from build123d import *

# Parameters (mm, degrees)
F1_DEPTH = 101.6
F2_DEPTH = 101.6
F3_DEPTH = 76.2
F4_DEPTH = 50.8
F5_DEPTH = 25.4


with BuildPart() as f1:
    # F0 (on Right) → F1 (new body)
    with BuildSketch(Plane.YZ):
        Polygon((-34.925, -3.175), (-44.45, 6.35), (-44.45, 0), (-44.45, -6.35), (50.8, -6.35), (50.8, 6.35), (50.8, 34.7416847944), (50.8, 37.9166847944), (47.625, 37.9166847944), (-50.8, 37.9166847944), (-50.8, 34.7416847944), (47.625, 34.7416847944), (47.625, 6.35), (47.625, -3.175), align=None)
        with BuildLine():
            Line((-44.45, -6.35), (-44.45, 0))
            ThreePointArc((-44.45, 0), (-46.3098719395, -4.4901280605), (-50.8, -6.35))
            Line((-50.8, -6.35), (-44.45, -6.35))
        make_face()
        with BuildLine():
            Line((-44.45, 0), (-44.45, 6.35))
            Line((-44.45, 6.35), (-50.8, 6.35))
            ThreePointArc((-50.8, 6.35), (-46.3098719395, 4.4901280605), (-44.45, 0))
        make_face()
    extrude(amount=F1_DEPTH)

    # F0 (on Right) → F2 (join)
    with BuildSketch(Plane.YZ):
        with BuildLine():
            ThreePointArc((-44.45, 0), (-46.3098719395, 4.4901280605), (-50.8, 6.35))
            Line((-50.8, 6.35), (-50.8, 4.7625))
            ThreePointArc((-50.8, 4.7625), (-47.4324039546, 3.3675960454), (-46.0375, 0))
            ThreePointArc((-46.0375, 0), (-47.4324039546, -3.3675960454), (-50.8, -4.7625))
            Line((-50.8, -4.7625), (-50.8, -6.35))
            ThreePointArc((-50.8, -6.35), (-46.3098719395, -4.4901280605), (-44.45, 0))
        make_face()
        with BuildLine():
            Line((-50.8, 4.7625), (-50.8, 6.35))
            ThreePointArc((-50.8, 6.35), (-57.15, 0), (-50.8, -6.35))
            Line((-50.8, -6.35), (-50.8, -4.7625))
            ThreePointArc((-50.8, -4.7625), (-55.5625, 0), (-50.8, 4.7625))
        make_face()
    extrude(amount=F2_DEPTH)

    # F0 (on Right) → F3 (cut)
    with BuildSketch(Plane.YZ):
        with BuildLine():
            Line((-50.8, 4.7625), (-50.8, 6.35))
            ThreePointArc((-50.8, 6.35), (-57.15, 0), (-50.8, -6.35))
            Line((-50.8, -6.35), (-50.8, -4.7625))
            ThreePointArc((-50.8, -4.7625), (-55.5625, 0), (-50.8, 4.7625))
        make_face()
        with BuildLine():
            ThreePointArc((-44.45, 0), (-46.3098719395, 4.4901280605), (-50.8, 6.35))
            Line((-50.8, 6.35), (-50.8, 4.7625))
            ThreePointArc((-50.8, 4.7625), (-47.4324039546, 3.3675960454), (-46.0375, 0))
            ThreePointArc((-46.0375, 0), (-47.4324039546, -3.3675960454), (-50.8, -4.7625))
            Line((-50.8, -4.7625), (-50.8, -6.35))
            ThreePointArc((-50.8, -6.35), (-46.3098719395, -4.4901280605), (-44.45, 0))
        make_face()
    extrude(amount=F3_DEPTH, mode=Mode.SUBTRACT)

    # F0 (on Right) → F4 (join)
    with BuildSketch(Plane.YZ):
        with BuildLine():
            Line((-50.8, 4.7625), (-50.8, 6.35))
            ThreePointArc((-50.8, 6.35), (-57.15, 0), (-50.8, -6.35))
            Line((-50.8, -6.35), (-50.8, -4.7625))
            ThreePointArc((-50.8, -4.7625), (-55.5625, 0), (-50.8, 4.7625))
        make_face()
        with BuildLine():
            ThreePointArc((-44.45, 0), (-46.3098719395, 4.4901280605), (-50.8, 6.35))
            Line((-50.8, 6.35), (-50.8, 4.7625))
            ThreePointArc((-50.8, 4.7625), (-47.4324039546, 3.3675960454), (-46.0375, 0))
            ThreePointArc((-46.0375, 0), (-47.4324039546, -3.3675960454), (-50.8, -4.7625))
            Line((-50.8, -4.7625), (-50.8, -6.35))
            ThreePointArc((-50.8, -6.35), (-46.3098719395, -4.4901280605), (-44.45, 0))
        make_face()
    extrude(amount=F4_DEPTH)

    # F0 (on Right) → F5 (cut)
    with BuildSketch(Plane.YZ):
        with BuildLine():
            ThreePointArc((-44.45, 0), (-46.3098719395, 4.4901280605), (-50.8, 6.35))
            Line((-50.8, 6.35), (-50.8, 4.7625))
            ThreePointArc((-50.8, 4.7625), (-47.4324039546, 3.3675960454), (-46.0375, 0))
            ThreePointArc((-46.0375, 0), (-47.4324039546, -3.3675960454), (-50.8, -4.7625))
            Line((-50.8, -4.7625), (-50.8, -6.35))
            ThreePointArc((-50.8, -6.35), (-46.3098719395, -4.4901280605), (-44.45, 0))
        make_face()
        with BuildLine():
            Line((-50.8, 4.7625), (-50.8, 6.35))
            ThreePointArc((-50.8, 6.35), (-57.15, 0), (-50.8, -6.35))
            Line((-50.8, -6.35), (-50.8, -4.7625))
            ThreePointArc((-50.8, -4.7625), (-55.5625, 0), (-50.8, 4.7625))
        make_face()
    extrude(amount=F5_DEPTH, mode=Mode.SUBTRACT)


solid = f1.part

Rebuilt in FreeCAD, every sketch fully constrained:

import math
import FreeCAD as App
import Part
import Sketcher
Q = App.Units.Quantity

doc = App.newDocument("Part")
body = doc.addObject("PartDesign::Body", "Body")

sketch1 = body.newObject("Sketcher::SketchObject", "Sketch")
sketch1.AttachmentSupport = (doc.getObject("YZ_Plane"), [""])
sketch1.MapMode = "FlatFace"
sketch1.addGeometry([
    Part.LineSegment(App.Vector(-34.925, -3.175, 0), App.Vector(-44.45, 6.35, 0)),
    Part.LineSegment(App.Vector(-44.45, 6.35, 0), App.Vector(-50.8, 6.35, 0)),
    Part.ArcOfCircle(Part.Circle(App.Vector(-50.8, 0, 0), App.Vector(0, 0, 1), 6.35), math.radians(0), math.radians(90)),
    Part.ArcOfCircle(Part.Circle(App.Vector(-50.8, 0, 0), App.Vector(0, 0, 1), 6.35), math.radians(-90), math.radians(0)),
    Part.LineSegment(App.Vector(-50.8, -6.35, 0), App.Vector(50.8, -6.35, 0)),
    Part.LineSegment(App.Vector(50.8, -6.35, 0), App.Vector(50.8, 37.916685, 0)),
    Part.LineSegment(App.Vector(50.8, 37.916685, 0), App.Vector(-50.8, 37.916685, 0)),
    Part.LineSegment(App.Vector(-50.8, 37.916685, 0), App.Vector(-50.8, 34.741685, 0)),
    Part.LineSegment(App.Vector(-50.8, 34.741685, 0), App.Vector(47.625, 34.741685, 0)),
    Part.LineSegment(App.Vector(47.625, 34.741685, 0), App.Vector(47.625, -3.175, 0)),
    Part.LineSegment(App.Vector(47.625, -3.175, 0), App.Vector(-34.925, -3.175, 0)),
], False)
sketch1.addConstraint([
    Sketcher.Constraint("Coincident", 0, 2, 1, 1),
    Sketcher.Constraint("Tangent", 1, 2, 2, 2),
    Sketcher.Constraint("Tangent", 2, 1, 3, 2),
    Sketcher.Constraint("Tangent", 3, 1, 4, 1),
    Sketcher.Constraint("Coincident", 4, 2, 5, 1),
    Sketcher.Constraint("Coincident", 5, 2, 6, 1),
    Sketcher.Constraint("Coincident", 6, 2, 7, 1),
    Sketcher.Constraint("Coincident", 7, 2, 8, 1),
    Sketcher.Constraint("Coincident", 8, 2, 9, 1),
    Sketcher.Constraint("Coincident", 9, 2, 10, 1),
    Sketcher.Constraint("Coincident", 10, 2, 0, 1),
    Sketcher.Constraint("Horizontal", 1),
    Sketcher.Constraint("Horizontal", 4),
    Sketcher.Constraint("Vertical", 5),
    Sketcher.Constraint("Horizontal", 6),
    Sketcher.Constraint("Vertical", 7),
    Sketcher.Constraint("Horizontal", 8),
    Sketcher.Constraint("Vertical", 9),
    Sketcher.Constraint("Horizontal", 10),
    Sketcher.Constraint("Equal", 2, 3),
    Sketcher.Constraint("Symmetric", 1, 2, 4, 2, -1, 1),
    Sketcher.Constraint("PointOnObject", 2, 1, -1),
    Sketcher.Constraint("Vertical", 0, 2, 2, 1),
    Sketcher.Constraint("Vertical", 3, 1, 6, 2),
    Sketcher.Constraint("DistanceX", 4, 1, 4, 2, Q("4 in")),
    Sketcher.Constraint("Radius", 2, Q("0.25 in")),
    Sketcher.Constraint("Angle", 0, Q("135 deg")),
    Sketcher.Constraint("DistanceX", 10, 2, 10, 1, Q("3.25 in")),
    Sketcher.Constraint("DistanceX", 8, 1, 8, 2, Q("3.875 in")),
    Sketcher.Constraint("DistanceY", 7, 2, 7, 1, Q("0.125 in")),
    Sketcher.Constraint("DistanceY", 5, 1, 5, 2, Q("44.266685 mm")),
])
pad1 = body.newObject("PartDesign::Pad", "Pad")
pad1.Profile = sketch1
pad1.Length = Q("4 in")

sketch2 = body.newObject("Sketcher::SketchObject", "Sketch001")
sketch2.AttachmentSupport = (doc.getObject("YZ_Plane"), [""])
sketch2.MapMode = "FlatFace"
sketch2.addGeometry([
    Part.ArcOfCircle(Part.Circle(App.Vector(-50.8, 0, 0), App.Vector(0, 0, 1), 6.35), math.radians(0), math.radians(90)),
    Part.ArcOfCircle(Part.Circle(App.Vector(-50.8, 0, 0), App.Vector(0, 0, 1), 6.35), math.radians(90), math.radians(270)),
    Part.ArcOfCircle(Part.Circle(App.Vector(-50.8, 0, 0), App.Vector(0, 0, 1), 6.35), math.radians(-90), math.radians(0)),
    Part.Circle(App.Vector(-50.8, 0, 0), App.Vector(0, 0, 1), 4.7625),
], False)
sketch2.addConstraint([
    Sketcher.Constraint("Tangent", 0, 2, 1, 1),
    Sketcher.Constraint("Tangent", 1, 2, 2, 1),
    Sketcher.Constraint("Tangent", 2, 2, 0, 1),
    Sketcher.Constraint("Coincident", 3, 3, 0, 3),
    Sketcher.Constraint("Symmetric", 0, 2, 1, 2, -1),
    Sketcher.Constraint("PointOnObject", 2, 2, -1),
    Sketcher.Constraint("Vertical", 3, 3, 0, 2),
    Sketcher.Constraint("Radius", 0, Q("0.25 in")),
    Sketcher.Constraint("Diameter", 3, Q("0.375 in")),
    Sketcher.Constraint("DistanceX", 0, 3, -1, 1, Q("2 in")),
])
pad2 = body.newObject("PartDesign::Pad", "Pad001")
pad2.Profile = sketch2
pad2.Length = Q("4 in")

sketch3 = body.newObject("Sketcher::SketchObject", "Sketch002")
sketch3.AttachmentSupport = (doc.getObject("YZ_Plane"), [""])
sketch3.MapMode = "FlatFace"
sketch3.addGeometry([
    Part.ArcOfCircle(Part.Circle(App.Vector(-50.8, 0, 0), App.Vector(0, 0, 1), 6.35), math.radians(90), math.radians(270)),
    Part.ArcOfCircle(Part.Circle(App.Vector(-50.8, 0, 0), App.Vector(0, 0, 1), 6.35), math.radians(-90), math.radians(0)),
    Part.ArcOfCircle(Part.Circle(App.Vector(-50.8, 0, 0), App.Vector(0, 0, 1), 6.35), math.radians(0), math.radians(90)),
    Part.Circle(App.Vector(-50.8, 0, 0), App.Vector(0, 0, 1), 4.7625),
], False)
sketch3.addConstraint([
    Sketcher.Constraint("Tangent", 0, 2, 1, 1),
    Sketcher.Constraint("Tangent", 1, 2, 2, 1),
    Sketcher.Constraint("Tangent", 2, 2, 0, 1),
    Sketcher.Constraint("Coincident", 3, 3, 0, 3),
    Sketcher.Constraint("Symmetric", 0, 2, 2, 2, -1),
    Sketcher.Constraint("PointOnObject", 1, 2, -1),
    Sketcher.Constraint("Vertical", 3, 3, 0, 2),
    Sketcher.Constraint("Radius", 0, Q("0.25 in")),
    Sketcher.Constraint("Diameter", 3, Q("0.375 in")),
    Sketcher.Constraint("DistanceX", 0, 3, -1, 1, Q("2 in")),
])
pocket1 = body.newObject("PartDesign::Pocket", "Pocket")
pocket1.Profile = sketch3
pocket1.Length = Q("3 in")
pocket1.Reversed = True

sketch4 = body.newObject("Sketcher::SketchObject", "Sketch003")
sketch4.AttachmentSupport = (doc.getObject("YZ_Plane"), [""])
sketch4.MapMode = "FlatFace"
sketch4.addGeometry([
    Part.ArcOfCircle(Part.Circle(App.Vector(-50.8, 0, 0), App.Vector(0, 0, 1), 6.35), math.radians(90), math.radians(270)),
    Part.ArcOfCircle(Part.Circle(App.Vector(-50.8, 0, 0), App.Vector(0, 0, 1), 6.35), math.radians(-90), math.radians(0)),
    Part.ArcOfCircle(Part.Circle(App.Vector(-50.8, 0, 0), App.Vector(0, 0, 1), 6.35), math.radians(0), math.radians(90)),
    Part.Circle(App.Vector(-50.8, 0, 0), App.Vector(0, 0, 1), 4.7625),
], False)
sketch4.addConstraint([
    Sketcher.Constraint("Tangent", 0, 2, 1, 1),
    Sketcher.Constraint("Tangent", 1, 2, 2, 1),
    Sketcher.Constraint("Tangent", 2, 2, 0, 1),
    Sketcher.Constraint("Coincident", 3, 3, 0, 3),
    Sketcher.Constraint("Symmetric", 0, 2, 2, 2, -1),
    Sketcher.Constraint("PointOnObject", 1, 2, -1),
    Sketcher.Constraint("Vertical", 3, 3, 0, 2),
    Sketcher.Constraint("Radius", 0, Q("0.25 in")),
    Sketcher.Constraint("Diameter", 3, Q("0.375 in")),
    Sketcher.Constraint("DistanceX", 0, 3, -1, 1, Q("2 in")),
])
pad3 = body.newObject("PartDesign::Pad", "Pad002")
pad3.Profile = sketch4
pad3.Length = Q("2 in")

sketch5 = body.newObject("Sketcher::SketchObject", "Sketch004")
sketch5.AttachmentSupport = (doc.getObject("YZ_Plane"), [""])
sketch5.MapMode = "FlatFace"
sketch5.addGeometry([
    Part.ArcOfCircle(Part.Circle(App.Vector(-50.8, 0, 0), App.Vector(0, 0, 1), 6.35), math.radians(0), math.radians(90)),
    Part.ArcOfCircle(Part.Circle(App.Vector(-50.8, 0, 0), App.Vector(0, 0, 1), 6.35), math.radians(90), math.radians(270)),
    Part.ArcOfCircle(Part.Circle(App.Vector(-50.8, 0, 0), App.Vector(0, 0, 1), 6.35), math.radians(-90), math.radians(0)),
    Part.Circle(App.Vector(-50.8, 0, 0), App.Vector(0, 0, 1), 4.7625),
], False)
sketch5.addConstraint([
    Sketcher.Constraint("Tangent", 0, 2, 1, 1),
    Sketcher.Constraint("Tangent", 1, 2, 2, 1),
    Sketcher.Constraint("Tangent", 2, 2, 0, 1),
    Sketcher.Constraint("Coincident", 3, 3, 0, 3),
    Sketcher.Constraint("Symmetric", 0, 2, 1, 2, -1),
    Sketcher.Constraint("PointOnObject", 2, 2, -1),
    Sketcher.Constraint("Vertical", 3, 3, 0, 2),
    Sketcher.Constraint("Radius", 0, Q("0.25 in")),
    Sketcher.Constraint("Diameter", 3, Q("0.375 in")),
    Sketcher.Constraint("DistanceX", 0, 3, -1, 1, Q("2 in")),
])
pocket2 = body.newObject("PartDesign::Pocket", "Pocket001")
pocket2.Profile = sketch5
pocket2.Length = Q("1 in")
pocket2.Reversed = True

doc.recompute()
